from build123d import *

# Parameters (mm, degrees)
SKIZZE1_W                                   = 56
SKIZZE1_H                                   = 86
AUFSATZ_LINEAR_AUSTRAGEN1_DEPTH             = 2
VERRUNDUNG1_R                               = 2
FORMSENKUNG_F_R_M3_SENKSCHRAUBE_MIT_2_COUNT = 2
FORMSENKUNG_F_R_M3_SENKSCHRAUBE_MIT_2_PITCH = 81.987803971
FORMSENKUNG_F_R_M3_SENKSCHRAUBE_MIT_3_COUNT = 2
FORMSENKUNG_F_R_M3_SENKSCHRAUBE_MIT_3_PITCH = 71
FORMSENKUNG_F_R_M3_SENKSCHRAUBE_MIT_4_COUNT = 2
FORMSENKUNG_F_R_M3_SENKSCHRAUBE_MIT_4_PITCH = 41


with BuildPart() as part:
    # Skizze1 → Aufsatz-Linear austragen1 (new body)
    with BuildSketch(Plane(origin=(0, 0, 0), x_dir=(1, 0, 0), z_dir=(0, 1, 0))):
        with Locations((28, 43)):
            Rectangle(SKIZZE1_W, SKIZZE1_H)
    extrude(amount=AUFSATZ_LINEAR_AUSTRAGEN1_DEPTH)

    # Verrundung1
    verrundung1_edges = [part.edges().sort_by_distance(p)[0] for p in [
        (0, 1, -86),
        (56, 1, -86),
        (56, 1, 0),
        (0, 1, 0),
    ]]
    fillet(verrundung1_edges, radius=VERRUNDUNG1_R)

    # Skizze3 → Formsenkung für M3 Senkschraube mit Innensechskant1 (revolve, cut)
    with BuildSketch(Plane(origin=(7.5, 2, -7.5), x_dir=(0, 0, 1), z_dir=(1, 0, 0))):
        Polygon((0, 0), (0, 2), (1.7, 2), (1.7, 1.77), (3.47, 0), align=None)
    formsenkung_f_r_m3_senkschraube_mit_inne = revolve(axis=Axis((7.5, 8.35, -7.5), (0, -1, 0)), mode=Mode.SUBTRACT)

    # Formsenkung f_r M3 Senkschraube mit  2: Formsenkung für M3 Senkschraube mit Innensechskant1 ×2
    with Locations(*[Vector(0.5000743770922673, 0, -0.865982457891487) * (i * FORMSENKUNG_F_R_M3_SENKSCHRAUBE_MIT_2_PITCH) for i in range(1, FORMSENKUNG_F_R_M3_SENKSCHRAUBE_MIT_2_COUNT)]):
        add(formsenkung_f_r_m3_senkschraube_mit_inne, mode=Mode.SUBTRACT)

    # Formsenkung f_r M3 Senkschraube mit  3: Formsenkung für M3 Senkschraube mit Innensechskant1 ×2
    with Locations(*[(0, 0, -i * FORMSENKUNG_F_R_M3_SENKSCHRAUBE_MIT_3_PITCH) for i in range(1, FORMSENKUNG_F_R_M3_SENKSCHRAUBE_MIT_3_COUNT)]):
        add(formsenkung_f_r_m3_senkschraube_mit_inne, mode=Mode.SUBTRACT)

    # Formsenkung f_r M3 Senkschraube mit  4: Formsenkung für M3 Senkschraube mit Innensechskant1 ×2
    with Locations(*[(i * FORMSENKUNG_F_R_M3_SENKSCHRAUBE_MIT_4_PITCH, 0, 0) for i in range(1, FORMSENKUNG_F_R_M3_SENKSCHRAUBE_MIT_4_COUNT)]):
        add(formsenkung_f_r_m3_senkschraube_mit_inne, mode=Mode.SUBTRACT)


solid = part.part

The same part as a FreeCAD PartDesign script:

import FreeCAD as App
import Part
import Sketcher
Q = App.Units.Quantity


def edges_at(feature, points):
    """Names of the edges that pass closest to the given points."""
    edges = feature.Shape.Edges
    near = lambda p: min(range(len(edges)), key=lambda i: edges[i].distToShape(Part.Vertex(*p))[0])
    return sorted({f"Edge{near(p) + 1}" for p in points})

doc = App.newDocument("Part")
body = doc.addObject("PartDesign::Body", "Body")

# Sketch on XZ plane
sketch1 = doc.addObject("Sketcher::SketchObject", "Sketch")
body.addObject(sketch1)
sketch1.AttachmentSupport = (doc.XZ_Plane, [""])
sketch1.MapMode = "FlatFace"
sketch1.addGeometry(Part.LineSegment(App.Vector(0, -86, 0), App.Vector(0, 0, 0)), False)
sketch1.addGeometry(Part.LineSegment(App.Vector(0, 0, 0), App.Vector(56, 0, 0)), False)
sketch1.addGeometry(Part.LineSegment(App.Vector(56, 0, 0), App.Vector(56, -86, 0)), False)
sketch1.addGeometry(Part.LineSegment(App.Vector(56, -86, 0), App.Vector(0, -86, 0)), False)
sketch1.addConstraint(Sketcher.Constraint("Coincident", 0, 2, 1, 1))
sketch1.addConstraint(Sketcher.Constraint("Coincident", 1, 2, 2, 1))
sketch1.addConstraint(Sketcher.Constraint("Coincident", 2, 2, 3, 1))
sketch1.addConstraint(Sketcher.Constraint("Coincident", 3, 2, 0, 1))
sketch1.addConstraint(Sketcher.Constraint("Vertical", 0))
sketch1.addConstraint(Sketcher.Constraint("Horizontal", 1))
sketch1.addConstraint(Sketcher.Constraint("Vertical", 2))
sketch1.addConstraint(Sketcher.Constraint("Horizontal", 3))
sketch1.addConstraint(Sketcher.Constraint("Coincident", 0, 2, -1, 1))
sketch1.addConstraint(Sketcher.Constraint("DistanceX", 1, 1, 1, 2, Q("56 mm")))
sketch1.addConstraint(Sketcher.Constraint("DistanceY", 0, 1, 0, 2, Q("86 mm")))
pad1 = doc.addObject("PartDesign::Pad", "Pad")
body.addObject(pad1)
pad1.Profile = sketch1
pad1.Length = 2
pad1.Reversed = True
doc.recompute()

fillet = doc.addObject("PartDesign::Fillet", "Fillet")
body.addObject(fillet)
fillet.Base = (pad1, edges_at(pad1, [
    (0, 1, -86),
    (56, 1, -86),
    (56, 1, 0),
    (0, 1, 0),
]))
fillet.Radius = 2

# Sketch on YZ plane
sketch2 = doc.addObject("Sketcher::SketchObject", "Sketch001")
body.addObject(sketch2)
sketch2.AttachmentSupport = (doc.YZ_Plane, [""])
sketch2.MapMode = "FlatFace"
sketch2.AttachmentOffset = App.Placement(App.Vector(0, 0, 7.5), App.Rotation())
sketch2.addGeometry(Part.LineSegment(App.Vector(0, -7.5, 0), App.Vector(2, -7.5, 0)), False)
sketch2.addGeometry(Part.LineSegment(App.Vector(2, -7.5, 0), App.Vector(2, -4.03, 0)), False)
sketch2.addGeometry(Part.LineSegment(App.Vector(2, -4.03, 0), App.Vector(0.23, -5.8, 0)), False)
sketch2.addGeometry(Part.LineSegment(App.Vector(0.23, -5.8, 0), App.Vector(0, -5.8, 0)), False)
sketch2.addGeometry(Part.LineSegment(App.Vector(0, -5.8, 0), App.Vector(0, -7.5, 0)), False)
sketch2.addGeometry(Part.LineSegment(App.Vector(2, -7.5, 0), App.Vector(0, -7.5, 0)), True)  # axis
sketch2.addConstraint(Sketcher.Constraint("Coincident", 0, 2, 1, 1))
sketch2.addConstraint(Sketcher.Constraint("Coincident", 1, 2, 2, 1))
sketch2.addConstraint(Sketcher.Constraint("Coincident", 2, 2, 3, 1))
sketch2.addConstraint(Sketcher.Constraint("Coincident", 3, 2, 4, 1))
sketch2.addConstraint(Sketcher.Constraint("Coincident", 4, 2, 0, 1))
sketch2.addConstraint(Sketcher.Constraint("Horizontal", 0))
sketch2.addConstraint(Sketcher.Constraint("Vertical", 1))
sketch2.addConstraint(Sketcher.Constraint("Horizontal", 3))
sketch2.addConstraint(Sketcher.Constraint("Vertical", 4))
sketch2.addConstraint(Sketcher.Constraint("Horizontal", 5))
sketch2.addConstraint(Sketcher.Constraint("Coincident", 5, 1, 0, 2))
sketch2.addConstraint(Sketcher.Constraint("PointOnObject", 3, 2, -2))
sketch2.addConstraint(Sketcher.Constraint("PointOnObject", 5, 2, -2))
sketch2.addConstraint(Sketcher.Constraint("DistanceX", 0, 1, 0, 2, Q("2 mm")))
sketch2.addConstraint(Sketcher.Constraint("Angle", 2, Q("-135 deg")))
sketch2.addConstraint(Sketcher.Constraint("DistanceY", 4, 2, 4, 1, Q("1.7 mm")))
sketch2.addConstraint(Sketcher.Constraint("DistanceX", 3, 2, 3, 1, Q("0.23 mm")))
sketch2.addConstraint(Sketcher.Constraint("DistanceY", 0, 2, -1, 1, Q("7.5 mm")))
groove = doc.addObject("PartDesign::Groove", "Groove")
body.addObject(groove)
groove.Profile = sketch2
groove.ReferenceAxis = (sketch2, ["Axis0"])
groove.Angle = 360
doc.recompute()

datumline = doc.addObject("PartDesign::Line", "DatumLine")
body.addObject(datumline)
datumline.Placement = App.Placement(App.Vector(0, 0, 0), App.Rotation(App.Vector(0, 0, 1), App.Vector(0.500074377, 0, -0.865982458)))
linearpattern = doc.addObject("PartDesign::LinearPattern", "LinearPattern")
body.addObject(linearpattern)
linearpattern.Originals = [groove]
linearpattern.Direction = (datumline, [""])
linearpattern.Mode = "offset"
linearpattern.Offset = 81.987804
linearpattern.Occurrences = 2
body.Tip = linearpattern
doc.recompute()

linearpattern2 = doc.addObject("PartDesign::LinearPattern", "LinearPattern001")
body.addObject(linearpattern2)
linearpattern2.Originals = [groove]
linearpattern2.Direction = (doc.Z_Axis, [""])
linearpattern2.Mode = "offset"
linearpattern2.Offset = 71
linearpattern2.Occurrences = 2
linearpattern2.Reversed = True
body.Tip = linearpattern2
doc.recompute()

linearpattern3 = doc.addObject("PartDesign::LinearPattern", "LinearPattern002")
body.addObject(linearpattern3)
linearpattern3.Originals = [groove]
linearpattern3.Direction = (doc.X_Axis, [""])
linearpattern3.Mode = "offset"
linearpattern3.Offset = 41
linearpattern3.Occurrences = 2
body.Tip = linearpattern3

doc.recompute()
